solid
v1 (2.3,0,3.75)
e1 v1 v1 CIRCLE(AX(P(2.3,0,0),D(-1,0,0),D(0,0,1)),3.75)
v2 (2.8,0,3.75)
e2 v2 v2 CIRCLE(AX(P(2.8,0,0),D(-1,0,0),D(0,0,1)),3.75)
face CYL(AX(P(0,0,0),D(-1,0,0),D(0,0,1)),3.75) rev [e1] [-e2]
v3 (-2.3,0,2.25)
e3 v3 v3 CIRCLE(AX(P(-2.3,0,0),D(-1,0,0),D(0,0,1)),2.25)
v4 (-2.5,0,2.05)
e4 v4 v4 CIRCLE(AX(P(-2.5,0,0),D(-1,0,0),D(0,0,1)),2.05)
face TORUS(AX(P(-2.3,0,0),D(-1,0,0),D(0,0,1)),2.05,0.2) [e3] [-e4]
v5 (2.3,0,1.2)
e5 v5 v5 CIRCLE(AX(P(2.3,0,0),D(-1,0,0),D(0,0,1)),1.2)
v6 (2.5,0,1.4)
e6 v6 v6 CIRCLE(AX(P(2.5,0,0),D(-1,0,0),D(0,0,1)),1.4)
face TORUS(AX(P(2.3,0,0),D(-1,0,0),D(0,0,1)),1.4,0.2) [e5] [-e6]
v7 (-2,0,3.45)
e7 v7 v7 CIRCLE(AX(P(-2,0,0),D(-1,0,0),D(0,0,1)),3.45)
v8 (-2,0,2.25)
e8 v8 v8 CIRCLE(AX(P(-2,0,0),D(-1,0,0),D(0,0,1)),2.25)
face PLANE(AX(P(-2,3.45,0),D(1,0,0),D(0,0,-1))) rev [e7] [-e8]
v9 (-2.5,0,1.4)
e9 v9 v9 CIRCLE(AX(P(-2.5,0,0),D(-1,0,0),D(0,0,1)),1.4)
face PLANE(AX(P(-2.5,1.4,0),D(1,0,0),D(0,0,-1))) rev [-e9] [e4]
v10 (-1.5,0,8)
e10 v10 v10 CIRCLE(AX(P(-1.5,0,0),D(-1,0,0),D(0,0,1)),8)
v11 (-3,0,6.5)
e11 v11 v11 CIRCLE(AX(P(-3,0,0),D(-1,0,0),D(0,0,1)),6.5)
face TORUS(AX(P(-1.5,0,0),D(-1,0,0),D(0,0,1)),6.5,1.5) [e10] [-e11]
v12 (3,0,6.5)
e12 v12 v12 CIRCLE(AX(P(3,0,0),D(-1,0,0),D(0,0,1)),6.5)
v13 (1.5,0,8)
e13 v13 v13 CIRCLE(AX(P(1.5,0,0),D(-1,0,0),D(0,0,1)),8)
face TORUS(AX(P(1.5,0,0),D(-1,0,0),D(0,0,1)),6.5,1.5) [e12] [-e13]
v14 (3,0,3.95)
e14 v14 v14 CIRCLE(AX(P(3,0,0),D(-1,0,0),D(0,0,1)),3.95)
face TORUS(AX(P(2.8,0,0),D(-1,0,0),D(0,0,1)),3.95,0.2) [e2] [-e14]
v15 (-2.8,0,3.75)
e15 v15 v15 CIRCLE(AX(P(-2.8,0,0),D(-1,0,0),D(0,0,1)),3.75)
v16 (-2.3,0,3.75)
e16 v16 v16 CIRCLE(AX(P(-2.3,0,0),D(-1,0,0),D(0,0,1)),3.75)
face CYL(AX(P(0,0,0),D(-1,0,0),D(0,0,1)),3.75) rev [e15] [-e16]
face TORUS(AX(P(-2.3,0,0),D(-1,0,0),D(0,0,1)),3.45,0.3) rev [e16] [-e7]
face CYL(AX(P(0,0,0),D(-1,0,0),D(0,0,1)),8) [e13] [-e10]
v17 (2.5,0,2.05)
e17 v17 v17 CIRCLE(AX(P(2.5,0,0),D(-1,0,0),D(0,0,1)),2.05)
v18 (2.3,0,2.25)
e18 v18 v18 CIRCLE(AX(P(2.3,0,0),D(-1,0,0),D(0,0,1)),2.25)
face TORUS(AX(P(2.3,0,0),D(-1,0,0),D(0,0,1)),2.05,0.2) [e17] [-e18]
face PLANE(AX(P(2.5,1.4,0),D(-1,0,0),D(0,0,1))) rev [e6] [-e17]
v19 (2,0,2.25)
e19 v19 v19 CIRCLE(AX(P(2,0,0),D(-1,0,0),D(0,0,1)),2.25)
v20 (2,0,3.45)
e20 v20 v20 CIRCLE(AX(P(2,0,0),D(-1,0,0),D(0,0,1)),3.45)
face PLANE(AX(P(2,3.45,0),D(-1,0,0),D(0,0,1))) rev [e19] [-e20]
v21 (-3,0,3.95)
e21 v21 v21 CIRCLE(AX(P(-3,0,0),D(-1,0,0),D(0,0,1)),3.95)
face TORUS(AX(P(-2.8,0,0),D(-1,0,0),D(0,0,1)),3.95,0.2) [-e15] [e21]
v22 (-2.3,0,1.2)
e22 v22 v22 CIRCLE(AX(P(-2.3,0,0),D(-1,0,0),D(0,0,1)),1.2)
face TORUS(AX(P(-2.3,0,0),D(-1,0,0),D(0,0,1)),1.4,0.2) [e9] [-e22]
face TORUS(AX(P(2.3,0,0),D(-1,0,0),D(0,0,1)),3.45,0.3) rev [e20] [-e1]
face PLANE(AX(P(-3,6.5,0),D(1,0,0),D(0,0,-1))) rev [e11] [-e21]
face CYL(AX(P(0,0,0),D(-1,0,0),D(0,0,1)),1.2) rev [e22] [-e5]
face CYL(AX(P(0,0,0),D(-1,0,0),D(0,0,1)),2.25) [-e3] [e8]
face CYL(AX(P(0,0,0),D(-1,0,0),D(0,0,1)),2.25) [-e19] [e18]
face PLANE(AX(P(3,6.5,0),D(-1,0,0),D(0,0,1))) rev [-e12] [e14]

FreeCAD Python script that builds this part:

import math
import FreeCAD as App
import Part
import Sketcher

V = App.Vector

doc = App.newDocument("Part")
body = doc.addObject("PartDesign::Body", "Body")

# Sketch on XY plane
sketch1 = body.newObject("Sketcher::SketchObject", "Sketch")
sketch1.AttachmentSupport = (doc.getObject("XY_Plane"), [""])
sketch1.MapMode = "FlatFace"
sketch1.addGeometry([
    Part.LineSegment(V(-2.3, 1.2, 0), V(2.3, 1.2, 0)),  # 0
    Part.ArcOfCircle(Part.Circle(V(2.3, 1.4, 0), V(0, 0, 1), 0.2), math.radians(-90), math.radians(0)),  # 1
    Part.LineSegment(V(2.5, 1.4, 0), V(2.5, 2.05, 0)),  # 2
    Part.ArcOfCircle(Part.Circle(V(2.3, 2.05, 0), V(0, 0, 1), 0.2), math.radians(0), math.radians(90)),  # 3
    Part.LineSegment(V(2.3, 2.25, 0), V(2, 2.25, 0)),  # 4
    Part.LineSegment(V(2, 2.25, 0), V(2, 3.45, 0)),  # 5
    Part.ArcOfCircle(Part.Circle(V(2.3, 3.45, 0), V(0, 0, 1), 0.3), math.radians(90), math.radians(180)),  # 6
    Part.LineSegment(V(2.3, 3.75, 0), V(2.8, 3.75, 0)),  # 7
    Part.ArcOfCircle(Part.Circle(V(2.8, 3.95, 0), V(0, 0, 1), 0.2), math.radians(-90), math.radians(0)),  # 8
    Part.LineSegment(V(3, 3.95, 0), V(3, 6.5, 0)),  # 9
    Part.ArcOfCircle(Part.Circle(V(1.5, 6.5, 0), V(0, 0, 1), 1.5), math.radians(0), math.radians(90)),  # 10
    Part.LineSegment(V(1.5, 8, 0), V(-1.5, 8, 0)),  # 11
    Part.ArcOfCircle(Part.Circle(V(-1.5, 6.5, 0), V(0, 0, 1), 1.5), math.radians(90), math.radians(180)),  # 12
    Part.LineSegment(V(-3, 6.5, 0), V(-3, 3.95, 0)),  # 13
    Part.ArcOfCircle(Part.Circle(V(-2.8, 3.95, 0), V(0, 0, 1), 0.2), math.radians(-180), math.radians(-90)),  # 14
    Part.LineSegment(V(-2.8, 3.75, 0), V(-2.3, 3.75, 0)),  # 15
    Part.ArcOfCircle(Part.Circle(V(-2.3, 3.45, 0), V(0, 0, 1), 0.3), math.radians(0), math.radians(90)),  # 16
    Part.LineSegment(V(-2, 3.45, 0), V(-2, 2.25, 0)),  # 17
    Part.LineSegment(V(-2, 2.25, 0), V(-2.3, 2.25, 0)),  # 18
    Part.ArcOfCircle(Part.Circle(V(-2.3, 2.05, 0), V(0, 0, 1), 0.2), math.radians(90), math.radians(180)),  # 19
    Part.LineSegment(V(-2.5, 2.05, 0), V(-2.5, 1.4, 0)),  # 20
    Part.ArcOfCircle(Part.Circle(V(-2.3, 1.4, 0), V(0, 0, 1), 0.2), math.radians(-180), math.radians(-90)),  # 21
], False)
sketch1.addConstraint([
    Sketcher.Constraint("Tangent", 0, 2, 1, 1),
    Sketcher.Constraint("Tangent", 1, 2, 2, 1),
    Sketcher.Constraint("Tangent", 2, 2, 3, 1),
    Sketcher.Constraint("Tangent", 3, 2, 4, 1),
    Sketcher.Constraint("Coincident", 4, 2, 5, 1),
    Sketcher.Constraint("Tangent", 5, 2, 6, 2),
    Sketcher.Constraint("Tangent", 6, 1, 7, 1),
    Sketcher.Constraint("Tangent", 7, 2, 8, 1),
    Sketcher.Constraint("Tangent", 8, 2, 9, 1),
    Sketcher.Constraint("Tangent", 9, 2, 10, 1),
    Sketcher.Constraint("Tangent", 10, 2, 11, 1),
    Sketcher.Constraint("Tangent", 11, 2, 12, 1),
    Sketcher.Constraint("Tangent", 12, 2, 13, 1),
    Sketcher.Constraint("Tangent", 13, 2, 14, 1),
    Sketcher.Constraint("Tangent", 14, 2, 15, 1),
    Sketcher.Constraint("Tangent", 15, 2, 16, 2),
    Sketcher.Constraint("Tangent", 16, 1, 17, 1),
    Sketcher.Constraint("Coincident", 17, 2, 18, 1),
    Sketcher.Constraint("Tangent", 18, 2, 19, 1),
    Sketcher.Constraint("Tangent", 19, 2, 20, 1),
    Sketcher.Constraint("Tangent", 20, 2, 21, 1),
    Sketcher.Constraint("Tangent", 21, 2, 0, 1),
    Sketcher.Constraint("Horizontal", 0),
    Sketcher.Constraint("Vertical", 2),
    Sketcher.Constraint("Horizontal", 4),
    Sketcher.Constraint("Vertical", 5),
    Sketcher.Constraint("Horizontal", 7),
    Sketcher.Constraint("Vertical", 9),
    Sketcher.Constraint("Horizontal", 11),
    Sketcher.Constraint("Vertical", 13),
    Sketcher.Constraint("Horizontal", 15),
    Sketcher.Constraint("Vertical", 17),
    Sketcher.Constraint("Horizontal", 18),
    Sketcher.Constraint("Vertical", 20),
    Sketcher.Constraint("Equal", 1, 3),
    Sketcher.Constraint("Equal", 3, 8),
    Sketcher.Constraint("Equal", 10, 12),
    Sketcher.Constraint("Equal", 8, 14),
    Sketcher.Constraint("Equal", 6, 16),
    Sketcher.Constraint("Equal", 14, 19),
    Sketcher.Constraint("Equal", 19, 21),
    Sketcher.Constraint("Symmetric", 8, 3, 14, 3, -2),
    Sketcher.Constraint("Symmetric", 3, 3, 19, 3, -2),
    Sketcher.Constraint("Vertical", 3, 3, 6, 3),
    Sketcher.Constraint("Vertical", 16, 3, 19, 3),
    Sketcher.Constraint("Radius", 1, 0.2),
    Sketcher.Constraint("Radius", 6, 0.3),
    Sketcher.Constraint("Radius", 10, 1.5),
    Sketcher.Constraint("DistanceX", 11, 2, 11, 1, 3.0),
    Sketcher.Constraint("DistanceX", 0, 1, 0, 2, 4.6),
    Sketcher.Constraint("DistanceY", 5, 1, 5, 2, 1.2),
    Sketcher.Constraint("DistanceY", -1, 1, 10, 2, 8.0),
    Sketcher.Constraint("DistanceY", 2, 1, 2, 2, 0.65),
    Sketcher.Constraint("DistanceY", 9, 1, 9, 2, 2.55),
])
revolution = body.newObject("PartDesign::Revolution", "Revolution")
revolution.Profile = sketch1
revolution.ReferenceAxis = (sketch1, ["H_Axis"])
revolution.Angle = 360

doc.recompute()
